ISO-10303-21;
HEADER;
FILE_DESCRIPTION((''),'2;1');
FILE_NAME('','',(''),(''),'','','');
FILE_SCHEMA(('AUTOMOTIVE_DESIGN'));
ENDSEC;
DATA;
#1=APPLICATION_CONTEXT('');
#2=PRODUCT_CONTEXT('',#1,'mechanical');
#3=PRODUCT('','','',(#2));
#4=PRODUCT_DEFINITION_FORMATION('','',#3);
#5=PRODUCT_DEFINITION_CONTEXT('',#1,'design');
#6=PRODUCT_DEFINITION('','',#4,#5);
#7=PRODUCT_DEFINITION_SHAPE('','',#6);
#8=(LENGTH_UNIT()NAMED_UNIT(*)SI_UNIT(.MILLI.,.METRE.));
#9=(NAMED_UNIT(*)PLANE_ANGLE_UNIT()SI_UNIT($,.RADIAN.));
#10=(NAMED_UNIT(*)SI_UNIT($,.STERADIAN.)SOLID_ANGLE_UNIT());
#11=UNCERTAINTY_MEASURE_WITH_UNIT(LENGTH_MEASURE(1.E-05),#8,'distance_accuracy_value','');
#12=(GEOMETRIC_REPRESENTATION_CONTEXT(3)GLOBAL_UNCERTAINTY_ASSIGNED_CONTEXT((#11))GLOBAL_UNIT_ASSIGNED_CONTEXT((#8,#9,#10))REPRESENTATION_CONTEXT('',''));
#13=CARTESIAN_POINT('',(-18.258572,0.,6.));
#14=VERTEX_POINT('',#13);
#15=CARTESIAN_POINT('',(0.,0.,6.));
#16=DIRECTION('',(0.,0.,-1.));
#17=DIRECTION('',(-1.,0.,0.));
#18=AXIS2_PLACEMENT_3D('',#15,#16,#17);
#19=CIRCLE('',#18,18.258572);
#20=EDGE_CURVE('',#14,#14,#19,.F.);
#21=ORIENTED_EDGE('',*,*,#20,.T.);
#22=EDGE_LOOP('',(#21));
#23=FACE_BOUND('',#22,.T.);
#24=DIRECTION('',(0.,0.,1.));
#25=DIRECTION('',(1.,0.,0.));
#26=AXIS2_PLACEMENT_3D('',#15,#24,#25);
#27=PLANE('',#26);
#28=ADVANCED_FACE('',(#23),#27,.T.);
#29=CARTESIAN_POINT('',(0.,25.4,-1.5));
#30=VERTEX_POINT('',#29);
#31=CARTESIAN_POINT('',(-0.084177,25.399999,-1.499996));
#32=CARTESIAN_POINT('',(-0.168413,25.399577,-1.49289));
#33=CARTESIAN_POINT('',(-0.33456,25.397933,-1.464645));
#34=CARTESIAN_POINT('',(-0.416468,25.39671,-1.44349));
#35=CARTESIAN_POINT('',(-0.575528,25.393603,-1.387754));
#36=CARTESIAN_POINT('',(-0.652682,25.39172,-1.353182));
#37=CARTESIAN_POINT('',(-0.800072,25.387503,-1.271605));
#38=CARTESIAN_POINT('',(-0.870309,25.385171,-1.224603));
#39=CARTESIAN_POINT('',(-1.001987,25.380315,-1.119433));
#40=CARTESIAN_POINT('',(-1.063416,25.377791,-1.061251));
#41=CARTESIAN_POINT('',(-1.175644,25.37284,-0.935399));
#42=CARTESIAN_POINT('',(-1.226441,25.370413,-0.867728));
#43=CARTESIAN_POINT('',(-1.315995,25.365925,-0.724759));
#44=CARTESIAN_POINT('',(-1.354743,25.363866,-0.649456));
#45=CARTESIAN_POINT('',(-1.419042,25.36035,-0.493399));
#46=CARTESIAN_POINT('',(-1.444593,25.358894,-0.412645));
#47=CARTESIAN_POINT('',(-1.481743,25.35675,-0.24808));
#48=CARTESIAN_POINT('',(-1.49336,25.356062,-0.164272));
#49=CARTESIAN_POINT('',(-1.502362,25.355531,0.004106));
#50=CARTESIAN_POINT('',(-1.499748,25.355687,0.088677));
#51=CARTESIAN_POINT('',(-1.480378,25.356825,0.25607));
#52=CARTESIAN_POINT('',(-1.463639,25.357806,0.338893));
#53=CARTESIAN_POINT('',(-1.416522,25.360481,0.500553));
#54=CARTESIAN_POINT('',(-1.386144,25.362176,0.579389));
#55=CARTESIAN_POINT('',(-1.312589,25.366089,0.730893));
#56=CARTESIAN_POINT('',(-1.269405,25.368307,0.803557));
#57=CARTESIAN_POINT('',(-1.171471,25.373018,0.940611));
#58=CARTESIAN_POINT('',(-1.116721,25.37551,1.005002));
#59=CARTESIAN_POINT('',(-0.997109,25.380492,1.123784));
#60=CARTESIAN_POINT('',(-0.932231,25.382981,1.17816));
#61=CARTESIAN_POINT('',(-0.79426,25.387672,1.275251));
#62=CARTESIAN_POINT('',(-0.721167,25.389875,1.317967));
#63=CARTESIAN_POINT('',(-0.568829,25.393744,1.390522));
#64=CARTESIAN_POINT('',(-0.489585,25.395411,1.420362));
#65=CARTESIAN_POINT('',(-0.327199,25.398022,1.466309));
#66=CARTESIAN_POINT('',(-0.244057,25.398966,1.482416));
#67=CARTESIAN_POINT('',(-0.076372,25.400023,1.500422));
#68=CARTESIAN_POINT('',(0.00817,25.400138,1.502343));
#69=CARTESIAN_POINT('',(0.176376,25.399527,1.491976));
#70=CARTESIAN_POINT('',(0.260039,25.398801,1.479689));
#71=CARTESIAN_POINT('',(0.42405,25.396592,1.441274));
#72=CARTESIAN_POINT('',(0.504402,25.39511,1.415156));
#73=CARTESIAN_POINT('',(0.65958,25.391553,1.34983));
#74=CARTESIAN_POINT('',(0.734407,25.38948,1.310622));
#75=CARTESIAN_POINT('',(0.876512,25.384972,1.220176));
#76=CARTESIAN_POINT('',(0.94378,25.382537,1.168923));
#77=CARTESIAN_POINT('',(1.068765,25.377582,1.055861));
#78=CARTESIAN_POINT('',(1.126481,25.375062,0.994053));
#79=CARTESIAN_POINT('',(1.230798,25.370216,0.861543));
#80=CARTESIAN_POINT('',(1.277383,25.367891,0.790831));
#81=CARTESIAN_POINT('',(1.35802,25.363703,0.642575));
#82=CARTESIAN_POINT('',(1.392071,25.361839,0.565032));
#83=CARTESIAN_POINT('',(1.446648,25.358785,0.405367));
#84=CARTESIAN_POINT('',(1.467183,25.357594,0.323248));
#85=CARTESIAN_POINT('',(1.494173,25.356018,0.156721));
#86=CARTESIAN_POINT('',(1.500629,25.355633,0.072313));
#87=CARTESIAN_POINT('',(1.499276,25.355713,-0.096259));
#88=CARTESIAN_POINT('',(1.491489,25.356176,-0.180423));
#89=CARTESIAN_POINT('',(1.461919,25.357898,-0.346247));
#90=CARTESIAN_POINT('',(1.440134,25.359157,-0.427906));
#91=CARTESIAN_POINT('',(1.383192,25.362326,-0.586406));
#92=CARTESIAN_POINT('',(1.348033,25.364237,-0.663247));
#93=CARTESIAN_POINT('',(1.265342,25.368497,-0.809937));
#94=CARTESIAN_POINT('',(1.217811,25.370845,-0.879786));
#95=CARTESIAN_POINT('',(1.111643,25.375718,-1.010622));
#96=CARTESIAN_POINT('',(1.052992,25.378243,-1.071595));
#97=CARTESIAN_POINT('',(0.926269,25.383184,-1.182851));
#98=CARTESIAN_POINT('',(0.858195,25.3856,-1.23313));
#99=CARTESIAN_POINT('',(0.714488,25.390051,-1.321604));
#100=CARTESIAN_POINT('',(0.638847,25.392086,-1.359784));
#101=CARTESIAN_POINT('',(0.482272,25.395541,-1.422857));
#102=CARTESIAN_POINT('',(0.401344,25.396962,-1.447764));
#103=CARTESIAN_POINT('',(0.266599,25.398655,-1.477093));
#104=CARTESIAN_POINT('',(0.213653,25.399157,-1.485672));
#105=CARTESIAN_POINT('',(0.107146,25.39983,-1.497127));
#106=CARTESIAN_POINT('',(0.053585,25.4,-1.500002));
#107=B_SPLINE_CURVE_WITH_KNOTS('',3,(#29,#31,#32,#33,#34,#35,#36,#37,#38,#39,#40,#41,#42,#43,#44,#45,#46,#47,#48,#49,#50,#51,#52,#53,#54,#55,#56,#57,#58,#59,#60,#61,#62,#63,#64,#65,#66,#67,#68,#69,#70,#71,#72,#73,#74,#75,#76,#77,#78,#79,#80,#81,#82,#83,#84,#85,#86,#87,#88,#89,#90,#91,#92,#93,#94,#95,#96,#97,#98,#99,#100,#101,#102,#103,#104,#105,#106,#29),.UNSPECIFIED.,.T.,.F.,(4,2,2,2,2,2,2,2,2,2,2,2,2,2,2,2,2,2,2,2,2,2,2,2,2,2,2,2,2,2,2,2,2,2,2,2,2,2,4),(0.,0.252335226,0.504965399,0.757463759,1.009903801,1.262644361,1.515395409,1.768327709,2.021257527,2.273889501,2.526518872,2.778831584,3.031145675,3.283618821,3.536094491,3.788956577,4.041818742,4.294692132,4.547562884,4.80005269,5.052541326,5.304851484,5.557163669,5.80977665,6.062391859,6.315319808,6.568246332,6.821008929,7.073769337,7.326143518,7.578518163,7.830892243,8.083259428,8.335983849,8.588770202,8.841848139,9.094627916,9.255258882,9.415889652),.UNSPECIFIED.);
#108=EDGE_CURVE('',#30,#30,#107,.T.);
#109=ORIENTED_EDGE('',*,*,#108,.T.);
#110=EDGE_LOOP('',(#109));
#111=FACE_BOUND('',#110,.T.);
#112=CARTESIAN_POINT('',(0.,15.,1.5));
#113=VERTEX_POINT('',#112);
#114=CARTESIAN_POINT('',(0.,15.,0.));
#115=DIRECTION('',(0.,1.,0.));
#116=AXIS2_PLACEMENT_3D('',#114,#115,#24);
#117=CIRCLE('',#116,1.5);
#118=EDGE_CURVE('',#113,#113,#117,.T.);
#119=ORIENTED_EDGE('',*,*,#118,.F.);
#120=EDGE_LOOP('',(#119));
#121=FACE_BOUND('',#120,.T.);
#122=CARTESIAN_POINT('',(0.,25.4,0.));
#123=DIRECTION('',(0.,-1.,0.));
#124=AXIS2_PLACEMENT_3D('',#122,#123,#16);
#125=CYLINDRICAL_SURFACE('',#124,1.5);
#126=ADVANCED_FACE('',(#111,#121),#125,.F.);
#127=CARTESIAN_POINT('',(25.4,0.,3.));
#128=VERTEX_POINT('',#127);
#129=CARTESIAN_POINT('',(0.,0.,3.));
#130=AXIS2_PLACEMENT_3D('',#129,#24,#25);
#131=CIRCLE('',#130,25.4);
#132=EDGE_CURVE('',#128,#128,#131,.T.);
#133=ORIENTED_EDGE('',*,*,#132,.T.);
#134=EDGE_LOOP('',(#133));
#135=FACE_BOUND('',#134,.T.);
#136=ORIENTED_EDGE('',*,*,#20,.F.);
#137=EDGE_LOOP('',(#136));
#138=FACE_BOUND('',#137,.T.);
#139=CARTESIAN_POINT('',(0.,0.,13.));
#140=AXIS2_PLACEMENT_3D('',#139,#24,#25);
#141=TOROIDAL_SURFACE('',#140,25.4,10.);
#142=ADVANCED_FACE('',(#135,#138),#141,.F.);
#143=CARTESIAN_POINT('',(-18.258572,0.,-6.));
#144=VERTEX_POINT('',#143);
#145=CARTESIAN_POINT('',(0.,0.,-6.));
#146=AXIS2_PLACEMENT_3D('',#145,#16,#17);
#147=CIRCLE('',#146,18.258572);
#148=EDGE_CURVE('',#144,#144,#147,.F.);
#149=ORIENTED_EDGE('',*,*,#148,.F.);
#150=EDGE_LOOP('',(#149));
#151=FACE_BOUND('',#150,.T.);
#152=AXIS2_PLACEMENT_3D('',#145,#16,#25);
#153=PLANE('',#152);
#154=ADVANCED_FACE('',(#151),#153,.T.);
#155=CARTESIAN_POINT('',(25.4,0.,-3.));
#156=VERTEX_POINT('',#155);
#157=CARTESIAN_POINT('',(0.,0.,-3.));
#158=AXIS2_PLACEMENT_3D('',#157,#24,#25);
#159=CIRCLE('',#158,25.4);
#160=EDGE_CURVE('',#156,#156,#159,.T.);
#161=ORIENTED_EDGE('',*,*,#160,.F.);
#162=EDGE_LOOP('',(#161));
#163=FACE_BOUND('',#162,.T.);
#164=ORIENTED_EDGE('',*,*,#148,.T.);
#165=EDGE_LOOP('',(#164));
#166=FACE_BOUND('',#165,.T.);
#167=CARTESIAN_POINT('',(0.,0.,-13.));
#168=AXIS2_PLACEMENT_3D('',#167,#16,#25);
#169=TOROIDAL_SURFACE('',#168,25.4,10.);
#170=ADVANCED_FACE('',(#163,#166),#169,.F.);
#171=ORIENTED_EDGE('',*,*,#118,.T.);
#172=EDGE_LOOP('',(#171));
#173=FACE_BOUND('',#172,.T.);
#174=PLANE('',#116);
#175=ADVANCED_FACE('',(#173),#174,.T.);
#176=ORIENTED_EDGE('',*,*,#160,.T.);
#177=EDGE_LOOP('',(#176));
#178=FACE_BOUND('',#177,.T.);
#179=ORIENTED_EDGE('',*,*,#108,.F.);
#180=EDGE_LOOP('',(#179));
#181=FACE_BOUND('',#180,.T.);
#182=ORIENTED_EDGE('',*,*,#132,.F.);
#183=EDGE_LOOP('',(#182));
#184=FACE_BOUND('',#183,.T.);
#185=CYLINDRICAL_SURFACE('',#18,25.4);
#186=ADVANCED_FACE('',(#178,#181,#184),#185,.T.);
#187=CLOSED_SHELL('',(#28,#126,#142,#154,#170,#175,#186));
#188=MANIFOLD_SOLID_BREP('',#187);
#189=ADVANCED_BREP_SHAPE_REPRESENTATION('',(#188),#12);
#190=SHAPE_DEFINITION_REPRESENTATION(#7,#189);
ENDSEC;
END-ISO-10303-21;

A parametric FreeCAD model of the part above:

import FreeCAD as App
import Part
import Sketcher

V = App.Vector

doc = App.newDocument("Part")
body = doc.addObject("PartDesign::Body", "Body")

# Sketch on XY plane
sketch1 = body.newObject("Sketcher::SketchObject", "Sketch")
sketch1.AttachmentSupport = (doc.getObject("XY_Plane"), [""])
sketch1.MapMode = "FlatFace"
sketch1.addGeometry(Part.Circle(V(0, 0, 0), V(0, 0, 1), 25), False)
sketch1.addConstraint([
    Sketcher.Constraint("Coincident", 0, 3, -1, 1),
    Sketcher.Constraint("Diameter", 0, 50.8),
])
pad1 = body.newObject("PartDesign::Pad", "Pad")
pad1.Profile = sketch1
pad1.Length = 6

# Sketch on YZ plane
sketch2 = body.newObject("Sketcher::SketchObject", "Sketch001")
sketch2.AttachmentSupport = (doc.getObject("YZ_Plane"), [""])
sketch2.MapMode = "FlatFace"
sketch2.addGeometry(Part.Circle(V(25, 13, 0), V(0, 0, 1), 10), False)
sketch2.addConstraint([
    Sketcher.Constraint("Diameter", 0, 20.0),
    Sketcher.Constraint("DistanceY", -1, 1, 0, 3, 13.0),
    Sketcher.Constraint("DistanceX", -1, 1, 0, 3, 25.4),
])
groove = body.newObject("PartDesign::Groove", "Groove")
groove.Profile = sketch2
groove.ReferenceAxis = (sketch2, ["V_Axis"])
groove.Angle = 360
body2 = doc.addObject("PartDesign::Body", "Body001")
doc.recompute()

body2.BaseFeature = body
doc.recompute()

mirroring = doc.addObject("Part::Mirroring", "Mirroring")
mirroring.Source = body
mirroring.Base = V(0, 0, 0)
mirroring.Normal = V(0, 0, 1)
body3 = doc.addObject("PartDesign::Body", "Body002")
body3.BaseFeature = mirroring
boolean = body2.newObject("PartDesign::Boolean", "Boolean")
boolean.Type = "Fuse"
boolean.addObjects([body3])
doc.recompute()

# Sketch on XZ plane
sketch3 = body2.newObject("Sketcher::SketchObject", "Sketch002")
sketch3.AttachmentSupport = (doc.getObject("XZ_Plane001"), [""])
sketch3.MapMode = "FlatFace"
sketch3.AttachmentOffset = App.Placement(V(0, 0, -15), App.Rotation())
sketch3.addGeometry(Part.Circle(V(0, 0, 0), V(0, 0, 1), 1.5), False)
sketch3.addConstraint([
    Sketcher.Constraint("Coincident", 0, 3, -1, 1),
    Sketcher.Constraint("Diameter", 0, 3.0),
])
pocket1 = body2.newObject("PartDesign::Pocket", "Pocket")
pocket1.Profile = sketch3
pocket1.Type = "ThroughAll"
mirroring.Visibility = False

doc.recompute()
